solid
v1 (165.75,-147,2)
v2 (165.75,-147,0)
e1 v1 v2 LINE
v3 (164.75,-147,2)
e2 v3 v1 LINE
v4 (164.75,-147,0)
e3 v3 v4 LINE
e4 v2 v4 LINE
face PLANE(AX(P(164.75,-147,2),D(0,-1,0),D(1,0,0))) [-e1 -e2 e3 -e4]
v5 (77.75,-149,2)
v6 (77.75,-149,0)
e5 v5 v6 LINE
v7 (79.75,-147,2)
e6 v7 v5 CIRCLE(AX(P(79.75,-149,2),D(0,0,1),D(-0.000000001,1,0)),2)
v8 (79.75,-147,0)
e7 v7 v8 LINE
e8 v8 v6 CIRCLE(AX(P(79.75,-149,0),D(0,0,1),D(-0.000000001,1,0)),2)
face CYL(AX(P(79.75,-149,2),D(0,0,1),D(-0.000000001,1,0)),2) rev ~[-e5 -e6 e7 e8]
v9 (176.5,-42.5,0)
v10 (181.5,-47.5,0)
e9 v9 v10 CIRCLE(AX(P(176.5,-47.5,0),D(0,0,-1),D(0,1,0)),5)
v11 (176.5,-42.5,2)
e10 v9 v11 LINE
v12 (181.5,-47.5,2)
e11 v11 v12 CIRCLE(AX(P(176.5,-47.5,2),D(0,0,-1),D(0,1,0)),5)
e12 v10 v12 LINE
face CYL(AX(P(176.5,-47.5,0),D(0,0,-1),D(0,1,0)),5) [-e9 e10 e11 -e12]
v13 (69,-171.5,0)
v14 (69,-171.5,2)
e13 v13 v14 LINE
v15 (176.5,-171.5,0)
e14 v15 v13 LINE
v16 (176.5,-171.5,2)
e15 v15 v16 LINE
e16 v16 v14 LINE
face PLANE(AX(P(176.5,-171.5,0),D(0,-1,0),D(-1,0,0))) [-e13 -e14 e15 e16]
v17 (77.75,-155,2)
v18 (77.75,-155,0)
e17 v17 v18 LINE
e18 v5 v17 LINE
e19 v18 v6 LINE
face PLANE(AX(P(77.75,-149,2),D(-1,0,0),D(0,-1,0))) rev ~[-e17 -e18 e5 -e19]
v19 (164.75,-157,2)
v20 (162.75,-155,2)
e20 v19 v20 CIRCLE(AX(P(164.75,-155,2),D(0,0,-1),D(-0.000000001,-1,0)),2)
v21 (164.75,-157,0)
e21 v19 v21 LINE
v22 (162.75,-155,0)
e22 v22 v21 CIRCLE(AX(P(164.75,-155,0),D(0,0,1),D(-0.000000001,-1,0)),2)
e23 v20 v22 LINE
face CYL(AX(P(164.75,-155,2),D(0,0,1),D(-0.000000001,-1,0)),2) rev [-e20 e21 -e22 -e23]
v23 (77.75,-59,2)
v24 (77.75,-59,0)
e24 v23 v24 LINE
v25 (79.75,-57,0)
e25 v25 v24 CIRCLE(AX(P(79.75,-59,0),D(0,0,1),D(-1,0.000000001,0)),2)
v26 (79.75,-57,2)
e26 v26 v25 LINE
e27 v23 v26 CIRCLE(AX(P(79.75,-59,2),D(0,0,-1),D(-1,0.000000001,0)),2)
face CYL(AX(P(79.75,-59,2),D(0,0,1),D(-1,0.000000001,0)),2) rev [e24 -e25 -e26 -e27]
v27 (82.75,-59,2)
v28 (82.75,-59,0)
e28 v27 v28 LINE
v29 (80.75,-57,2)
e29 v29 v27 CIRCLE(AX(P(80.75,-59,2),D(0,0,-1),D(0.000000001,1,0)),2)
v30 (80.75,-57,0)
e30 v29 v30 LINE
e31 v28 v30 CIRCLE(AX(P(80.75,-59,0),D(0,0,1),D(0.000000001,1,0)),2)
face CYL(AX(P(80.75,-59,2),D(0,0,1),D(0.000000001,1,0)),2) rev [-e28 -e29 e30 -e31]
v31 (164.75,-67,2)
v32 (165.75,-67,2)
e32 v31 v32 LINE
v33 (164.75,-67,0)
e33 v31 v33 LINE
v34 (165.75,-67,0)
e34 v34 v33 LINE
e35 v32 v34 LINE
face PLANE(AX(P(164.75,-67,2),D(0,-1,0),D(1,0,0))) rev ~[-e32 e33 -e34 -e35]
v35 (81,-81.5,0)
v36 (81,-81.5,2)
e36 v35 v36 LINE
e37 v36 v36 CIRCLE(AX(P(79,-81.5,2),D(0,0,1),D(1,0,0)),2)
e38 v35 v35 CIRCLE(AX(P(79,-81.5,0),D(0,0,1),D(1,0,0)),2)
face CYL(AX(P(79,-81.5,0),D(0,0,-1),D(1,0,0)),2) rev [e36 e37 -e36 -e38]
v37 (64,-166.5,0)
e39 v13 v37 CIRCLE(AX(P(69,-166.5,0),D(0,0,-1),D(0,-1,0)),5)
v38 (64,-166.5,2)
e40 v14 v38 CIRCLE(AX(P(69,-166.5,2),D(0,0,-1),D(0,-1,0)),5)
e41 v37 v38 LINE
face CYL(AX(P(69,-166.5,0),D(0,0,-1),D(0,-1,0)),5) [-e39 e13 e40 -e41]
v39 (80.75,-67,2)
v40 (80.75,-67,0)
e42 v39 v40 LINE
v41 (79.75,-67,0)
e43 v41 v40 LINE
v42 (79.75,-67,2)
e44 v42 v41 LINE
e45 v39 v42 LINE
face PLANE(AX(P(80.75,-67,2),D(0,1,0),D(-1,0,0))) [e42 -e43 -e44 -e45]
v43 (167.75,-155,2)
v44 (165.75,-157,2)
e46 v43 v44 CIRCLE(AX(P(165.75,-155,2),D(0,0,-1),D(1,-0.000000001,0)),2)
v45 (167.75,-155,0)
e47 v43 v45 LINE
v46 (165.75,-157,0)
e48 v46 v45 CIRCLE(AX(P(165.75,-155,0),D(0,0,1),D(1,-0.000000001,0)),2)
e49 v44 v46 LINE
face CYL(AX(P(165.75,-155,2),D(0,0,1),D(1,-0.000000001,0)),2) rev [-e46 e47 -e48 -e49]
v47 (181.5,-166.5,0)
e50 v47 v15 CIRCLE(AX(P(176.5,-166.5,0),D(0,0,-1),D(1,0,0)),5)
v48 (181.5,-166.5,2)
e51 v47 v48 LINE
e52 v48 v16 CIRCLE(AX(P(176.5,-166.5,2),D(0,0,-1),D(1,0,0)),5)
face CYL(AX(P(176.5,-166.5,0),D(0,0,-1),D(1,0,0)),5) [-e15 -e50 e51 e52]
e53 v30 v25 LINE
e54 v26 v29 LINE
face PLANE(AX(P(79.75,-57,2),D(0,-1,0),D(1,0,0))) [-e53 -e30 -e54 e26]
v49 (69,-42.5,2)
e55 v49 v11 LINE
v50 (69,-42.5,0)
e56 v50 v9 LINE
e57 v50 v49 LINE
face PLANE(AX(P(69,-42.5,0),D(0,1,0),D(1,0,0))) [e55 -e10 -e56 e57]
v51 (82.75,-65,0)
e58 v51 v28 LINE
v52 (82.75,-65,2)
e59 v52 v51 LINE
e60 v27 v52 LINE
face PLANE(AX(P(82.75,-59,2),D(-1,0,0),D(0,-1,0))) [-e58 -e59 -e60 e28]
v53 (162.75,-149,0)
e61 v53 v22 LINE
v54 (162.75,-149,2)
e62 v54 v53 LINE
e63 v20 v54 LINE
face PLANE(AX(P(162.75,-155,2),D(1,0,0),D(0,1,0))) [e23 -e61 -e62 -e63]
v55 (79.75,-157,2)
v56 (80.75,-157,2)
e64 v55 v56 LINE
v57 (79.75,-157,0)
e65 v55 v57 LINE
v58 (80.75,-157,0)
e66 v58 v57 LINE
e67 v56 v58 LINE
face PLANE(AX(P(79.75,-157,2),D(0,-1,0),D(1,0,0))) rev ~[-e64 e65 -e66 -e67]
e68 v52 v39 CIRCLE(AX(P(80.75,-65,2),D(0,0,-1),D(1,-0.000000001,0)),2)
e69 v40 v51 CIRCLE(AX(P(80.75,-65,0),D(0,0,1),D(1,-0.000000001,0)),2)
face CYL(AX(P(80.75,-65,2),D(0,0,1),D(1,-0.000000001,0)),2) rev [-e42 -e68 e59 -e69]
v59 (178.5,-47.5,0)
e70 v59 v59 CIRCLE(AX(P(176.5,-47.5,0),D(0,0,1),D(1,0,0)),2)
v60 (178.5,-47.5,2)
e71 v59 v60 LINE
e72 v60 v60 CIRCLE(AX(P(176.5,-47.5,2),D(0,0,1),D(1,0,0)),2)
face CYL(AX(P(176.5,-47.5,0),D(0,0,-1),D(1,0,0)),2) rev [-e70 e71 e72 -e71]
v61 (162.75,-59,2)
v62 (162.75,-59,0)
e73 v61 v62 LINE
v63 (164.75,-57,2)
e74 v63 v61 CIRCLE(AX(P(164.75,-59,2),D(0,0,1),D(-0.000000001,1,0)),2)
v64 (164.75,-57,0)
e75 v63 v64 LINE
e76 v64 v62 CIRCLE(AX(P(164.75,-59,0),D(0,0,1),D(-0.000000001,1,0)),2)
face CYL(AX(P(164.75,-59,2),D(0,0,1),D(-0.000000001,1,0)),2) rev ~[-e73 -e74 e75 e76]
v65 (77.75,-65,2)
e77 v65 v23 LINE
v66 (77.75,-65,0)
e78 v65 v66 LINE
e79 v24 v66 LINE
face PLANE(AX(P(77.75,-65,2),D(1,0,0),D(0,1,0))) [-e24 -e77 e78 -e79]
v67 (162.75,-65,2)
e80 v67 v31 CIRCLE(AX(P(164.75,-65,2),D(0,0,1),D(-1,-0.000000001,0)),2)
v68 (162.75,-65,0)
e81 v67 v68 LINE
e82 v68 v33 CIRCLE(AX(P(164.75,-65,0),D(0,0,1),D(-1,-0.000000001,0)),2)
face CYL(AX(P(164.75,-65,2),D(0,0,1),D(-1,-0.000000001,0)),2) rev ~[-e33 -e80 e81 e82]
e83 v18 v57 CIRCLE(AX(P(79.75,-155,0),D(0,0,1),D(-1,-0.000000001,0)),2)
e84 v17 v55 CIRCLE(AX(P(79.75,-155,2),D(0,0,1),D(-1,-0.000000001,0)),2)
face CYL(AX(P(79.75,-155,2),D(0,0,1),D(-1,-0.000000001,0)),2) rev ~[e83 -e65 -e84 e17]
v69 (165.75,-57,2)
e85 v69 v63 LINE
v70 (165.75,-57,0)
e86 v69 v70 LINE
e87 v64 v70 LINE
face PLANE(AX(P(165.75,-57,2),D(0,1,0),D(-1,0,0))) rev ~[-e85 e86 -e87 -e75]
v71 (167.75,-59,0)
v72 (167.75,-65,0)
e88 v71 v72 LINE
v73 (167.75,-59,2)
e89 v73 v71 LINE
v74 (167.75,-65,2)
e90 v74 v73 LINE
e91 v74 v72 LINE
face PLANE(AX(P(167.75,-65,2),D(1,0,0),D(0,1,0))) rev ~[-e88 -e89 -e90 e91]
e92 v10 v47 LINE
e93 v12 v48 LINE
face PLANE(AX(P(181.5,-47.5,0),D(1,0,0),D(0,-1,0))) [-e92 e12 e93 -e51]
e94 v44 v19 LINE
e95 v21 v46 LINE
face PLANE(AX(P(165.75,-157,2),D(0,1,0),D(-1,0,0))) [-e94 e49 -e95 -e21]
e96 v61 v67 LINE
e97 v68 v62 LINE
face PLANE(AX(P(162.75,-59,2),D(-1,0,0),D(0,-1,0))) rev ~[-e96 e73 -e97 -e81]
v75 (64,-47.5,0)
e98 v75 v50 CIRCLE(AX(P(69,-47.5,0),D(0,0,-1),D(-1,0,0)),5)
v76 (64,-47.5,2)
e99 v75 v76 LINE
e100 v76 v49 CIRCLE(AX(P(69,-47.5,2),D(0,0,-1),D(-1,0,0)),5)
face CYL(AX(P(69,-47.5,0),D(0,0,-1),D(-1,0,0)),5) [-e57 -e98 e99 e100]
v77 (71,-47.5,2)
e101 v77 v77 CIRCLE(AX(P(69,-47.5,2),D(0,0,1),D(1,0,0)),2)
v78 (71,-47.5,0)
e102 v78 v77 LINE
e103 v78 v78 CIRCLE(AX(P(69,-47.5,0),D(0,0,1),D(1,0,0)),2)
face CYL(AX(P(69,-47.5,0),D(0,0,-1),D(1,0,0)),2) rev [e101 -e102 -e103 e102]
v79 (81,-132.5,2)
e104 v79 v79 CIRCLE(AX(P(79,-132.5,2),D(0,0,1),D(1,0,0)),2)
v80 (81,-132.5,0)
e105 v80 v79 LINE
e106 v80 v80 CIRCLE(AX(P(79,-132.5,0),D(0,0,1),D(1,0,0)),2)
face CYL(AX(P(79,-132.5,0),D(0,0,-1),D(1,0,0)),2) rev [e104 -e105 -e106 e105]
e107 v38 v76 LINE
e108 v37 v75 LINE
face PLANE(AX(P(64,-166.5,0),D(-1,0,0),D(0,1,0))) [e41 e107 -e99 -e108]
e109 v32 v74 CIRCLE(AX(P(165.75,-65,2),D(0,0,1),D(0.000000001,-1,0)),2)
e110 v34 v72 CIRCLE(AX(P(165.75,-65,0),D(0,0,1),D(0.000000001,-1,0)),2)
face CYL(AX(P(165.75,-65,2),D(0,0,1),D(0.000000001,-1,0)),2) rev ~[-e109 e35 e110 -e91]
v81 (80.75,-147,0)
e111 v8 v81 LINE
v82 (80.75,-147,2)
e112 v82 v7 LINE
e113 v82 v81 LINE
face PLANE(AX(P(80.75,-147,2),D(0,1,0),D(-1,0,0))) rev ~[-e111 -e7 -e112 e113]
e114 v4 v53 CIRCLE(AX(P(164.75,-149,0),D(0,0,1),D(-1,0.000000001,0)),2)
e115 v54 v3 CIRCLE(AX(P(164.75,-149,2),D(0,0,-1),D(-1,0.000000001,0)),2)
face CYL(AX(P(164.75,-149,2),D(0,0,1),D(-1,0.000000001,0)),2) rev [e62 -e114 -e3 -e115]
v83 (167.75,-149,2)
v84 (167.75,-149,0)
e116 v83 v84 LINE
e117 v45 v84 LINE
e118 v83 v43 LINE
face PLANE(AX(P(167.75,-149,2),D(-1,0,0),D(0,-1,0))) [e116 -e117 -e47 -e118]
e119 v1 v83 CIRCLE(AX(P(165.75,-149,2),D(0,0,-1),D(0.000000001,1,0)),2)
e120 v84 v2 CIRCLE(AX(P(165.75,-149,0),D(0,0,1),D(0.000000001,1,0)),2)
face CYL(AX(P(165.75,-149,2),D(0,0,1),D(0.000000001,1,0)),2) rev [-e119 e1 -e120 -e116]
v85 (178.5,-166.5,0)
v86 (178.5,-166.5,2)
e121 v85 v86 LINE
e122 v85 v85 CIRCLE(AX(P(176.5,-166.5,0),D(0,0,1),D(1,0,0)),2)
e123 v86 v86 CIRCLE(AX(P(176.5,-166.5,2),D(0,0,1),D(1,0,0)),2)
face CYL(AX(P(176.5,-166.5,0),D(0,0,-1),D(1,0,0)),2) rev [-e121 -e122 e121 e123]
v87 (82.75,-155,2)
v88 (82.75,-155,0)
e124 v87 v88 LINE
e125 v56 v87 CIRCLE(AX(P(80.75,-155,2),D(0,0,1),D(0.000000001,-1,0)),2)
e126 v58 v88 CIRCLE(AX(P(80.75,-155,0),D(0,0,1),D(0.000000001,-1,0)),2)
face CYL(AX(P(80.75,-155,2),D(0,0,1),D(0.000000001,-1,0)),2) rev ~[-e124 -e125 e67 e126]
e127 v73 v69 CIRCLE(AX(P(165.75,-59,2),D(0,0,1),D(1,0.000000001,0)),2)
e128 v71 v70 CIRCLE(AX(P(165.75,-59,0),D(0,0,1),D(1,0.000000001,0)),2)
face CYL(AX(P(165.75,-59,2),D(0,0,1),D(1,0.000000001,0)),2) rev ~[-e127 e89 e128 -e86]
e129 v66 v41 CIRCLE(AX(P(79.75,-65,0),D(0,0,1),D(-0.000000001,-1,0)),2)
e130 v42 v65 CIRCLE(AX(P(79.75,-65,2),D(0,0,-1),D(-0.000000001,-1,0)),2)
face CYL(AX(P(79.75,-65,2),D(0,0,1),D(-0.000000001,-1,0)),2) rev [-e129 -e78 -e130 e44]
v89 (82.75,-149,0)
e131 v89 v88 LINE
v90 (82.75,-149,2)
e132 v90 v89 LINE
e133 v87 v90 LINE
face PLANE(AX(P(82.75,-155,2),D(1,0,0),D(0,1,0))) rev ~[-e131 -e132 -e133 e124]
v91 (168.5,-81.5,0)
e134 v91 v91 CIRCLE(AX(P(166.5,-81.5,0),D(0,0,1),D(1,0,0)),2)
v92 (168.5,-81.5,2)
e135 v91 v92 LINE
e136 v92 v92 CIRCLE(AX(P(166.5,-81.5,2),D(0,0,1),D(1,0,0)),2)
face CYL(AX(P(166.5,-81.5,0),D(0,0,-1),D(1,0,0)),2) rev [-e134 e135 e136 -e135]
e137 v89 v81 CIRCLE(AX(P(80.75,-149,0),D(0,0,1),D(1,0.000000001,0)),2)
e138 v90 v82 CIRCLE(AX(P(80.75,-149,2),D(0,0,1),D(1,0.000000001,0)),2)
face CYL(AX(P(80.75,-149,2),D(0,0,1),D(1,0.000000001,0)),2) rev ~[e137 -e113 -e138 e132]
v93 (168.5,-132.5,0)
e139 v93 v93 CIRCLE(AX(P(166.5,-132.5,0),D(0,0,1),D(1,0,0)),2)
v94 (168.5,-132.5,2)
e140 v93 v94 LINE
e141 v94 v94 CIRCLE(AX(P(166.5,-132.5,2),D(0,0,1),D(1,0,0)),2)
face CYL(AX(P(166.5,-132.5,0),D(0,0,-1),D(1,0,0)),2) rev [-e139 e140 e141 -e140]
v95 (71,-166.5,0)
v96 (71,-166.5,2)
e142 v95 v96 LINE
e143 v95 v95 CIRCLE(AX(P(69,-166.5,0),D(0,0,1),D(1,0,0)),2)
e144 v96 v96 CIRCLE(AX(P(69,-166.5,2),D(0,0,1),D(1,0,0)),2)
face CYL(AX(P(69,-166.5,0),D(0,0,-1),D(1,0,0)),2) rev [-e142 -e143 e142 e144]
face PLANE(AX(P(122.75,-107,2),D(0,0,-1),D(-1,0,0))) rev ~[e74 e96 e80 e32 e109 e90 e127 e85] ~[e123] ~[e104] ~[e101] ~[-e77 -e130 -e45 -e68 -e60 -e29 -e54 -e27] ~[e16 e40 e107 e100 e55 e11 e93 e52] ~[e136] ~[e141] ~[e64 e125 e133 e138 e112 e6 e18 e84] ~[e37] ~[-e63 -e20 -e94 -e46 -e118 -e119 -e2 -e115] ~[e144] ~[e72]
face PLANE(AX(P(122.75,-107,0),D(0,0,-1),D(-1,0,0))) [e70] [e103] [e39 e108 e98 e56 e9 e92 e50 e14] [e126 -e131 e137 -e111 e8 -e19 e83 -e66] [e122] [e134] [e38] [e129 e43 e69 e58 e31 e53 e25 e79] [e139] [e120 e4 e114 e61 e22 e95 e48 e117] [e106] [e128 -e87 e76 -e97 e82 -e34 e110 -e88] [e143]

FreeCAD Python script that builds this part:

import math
import FreeCAD as App
import Part
import Sketcher

V = App.Vector
Q = App.Units.Quantity

doc = App.newDocument("Part")
body = doc.addObject("PartDesign::Body", "Body")

sketch1 = body.newObject("Sketcher::SketchObject", "Sketch")
sketch1.AttachmentSupport = (doc.getObject("XY_Plane"), [""])
sketch1.MapMode = "FlatFace"
sketch1.addGeometry([
    Part.LineSegment(V(176.5, -42.5, 0), V(69, -42.5, 0)),
    Part.ArcOfCircle(Part.Circle(V(69, -47.5, 0), V(0, 0, 1), 5), math.radians(90), math.radians(180)),
    Part.LineSegment(V(64, -47.5, 0), V(64, -166.5, 0)),
    Part.ArcOfCircle(Part.Circle(V(69, -166.5, 0), V(0, 0, 1), 5), math.radians(180), math.radians(270)),
    Part.LineSegment(V(69, -171.5, 0), V(176.5, -171.5, 0)),
    Part.ArcOfCircle(Part.Circle(V(176.5, -166.5, 0), V(0, 0, 1), 5), math.radians(-90), math.radians(0)),
    Part.LineSegment(V(181.5, -166.5, 0), V(181.5, -47.5, 0)),
    Part.ArcOfCircle(Part.Circle(V(176.5, -47.5, 0), V(0, 0, 1), 5), math.radians(0), math.radians(90)),
    Part.Circle(V(176.5, -166.5, 0), V(0, 0, 1), 2),
    Part.Circle(V(166.5, -132.5, 0), V(0, 0, 1), 2),
    Part.Circle(V(69, -166.5, 0), V(0, 0, 1), 2),
    Part.Circle(V(79, -132.5, 0), V(0, 0, 1), 2),
    Part.Circle(V(166.5, -81.5, 0), V(0, 0, 1), 2),
    Part.Circle(V(176.5, -47.5, 0), V(0, 0, 1), 2),
    Part.Circle(V(79, -81.5, 0), V(0, 0, 1), 2),
    Part.Circle(V(69, -47.5, 0), V(0, 0, 1), 2),
], False)
sketch1.addConstraint([
    Sketcher.Constraint("Tangent", 0, 2, 1, 1),
    Sketcher.Constraint("Tangent", 1, 2, 2, 1),
    Sketcher.Constraint("Tangent", 2, 2, 3, 1),
    Sketcher.Constraint("Tangent", 3, 2, 4, 1),
    Sketcher.Constraint("Tangent", 4, 2, 5, 1),
    Sketcher.Constraint("Tangent", 5, 2, 6, 1),
    Sketcher.Constraint("Tangent", 6, 2, 7, 1),
    Sketcher.Constraint("Tangent", 7, 2, 0, 1),
    Sketcher.Constraint("Horizontal", 0),
    Sketcher.Constraint("Vertical", 2),
    Sketcher.Constraint("Horizontal", 4),
    Sketcher.Constraint("Vertical", 6),
    Sketcher.Constraint("Coincident", 8, 3, 5, 3),
    Sketcher.Constraint("Coincident", 10, 3, 3, 3),
    Sketcher.Constraint("Coincident", 13, 3, 7, 3),
    Sketcher.Constraint("Coincident", 15, 3, 1, 3),
    Sketcher.Constraint("Equal", 1, 3),
    Sketcher.Constraint("Equal", 3, 5),
    Sketcher.Constraint("Equal", 5, 7),
    Sketcher.Constraint("Equal", 8, 9),
    Sketcher.Constraint("Equal", 9, 10),
    Sketcher.Constraint("Equal", 10, 11),
    Sketcher.Constraint("Equal", 11, 12),
    Sketcher.Constraint("Equal", 12, 13),
    Sketcher.Constraint("Equal", 13, 14),
    Sketcher.Constraint("Equal", 14, 15),
    Sketcher.Constraint("Horizontal", 9, 3, 11, 3),
    Sketcher.Constraint("Horizontal", 12, 3, 14, 3),
    Sketcher.Constraint("Vertical", 9, 3, 12, 3),
    Sketcher.Constraint("Vertical", 11, 3, 14, 3),
    Sketcher.Constraint("Diameter", 8, Q("4 mm")),
    Sketcher.Constraint("Radius", 1, Q("5 mm")),
    Sketcher.Constraint("DistanceY", 2, 2, 2, 1, Q("119 mm")),
    Sketcher.Constraint("DistanceX", 0, 2, 0, 1, Q("107.5 mm")),
    Sketcher.Constraint("DistanceX", -1, 1, 1, 3, Q("69 mm")),
    Sketcher.Constraint("DistanceX", -1, 1, 11, 3, Q("79 mm")),
    Sketcher.Constraint("DistanceX", 9, 3, 5, 3, Q("10 mm")),
    Sketcher.Constraint("DistanceY", 5, 3, 9, 3, Q("34 mm")),
    Sketcher.Constraint("DistanceY", 12, 3, 7, 3, Q("34 mm")),
    Sketcher.Constraint("DistanceY", 1, 3, -1, 1, Q("47.5 mm")),
])
pad1 = body.newObject("PartDesign::Pad", "Pad")
pad1.Profile = sketch1
pad1.Length = 2

sketch2 = body.newObject("Sketcher::SketchObject", "Sketch001")
sketch2.AttachmentSupport = (doc.getObject("XY_Plane"), [""])
sketch2.MapMode = "FlatFace"
sketch2.AttachmentOffset = App.Placement(V(0, 0, 2), App.Rotation())
sketch2.addGeometry([
    Part.LineSegment(V(80.8, -57, 0), V(79.8, -57, 0)),
    Part.ArcOfCircle(Part.Circle(V(79.8, -59, 0), V(0, 0, 1), 2), math.radians(90), math.radians(180)),
    Part.LineSegment(V(77.8, -59, 0), V(77.8, -65, 0)),
    Part.ArcOfCircle(Part.Circle(V(79.8, -65, 0), V(0, 0, 1), 2), math.radians(-180), math.radians(-90)),
    Part.LineSegment(V(79.8, -67, 0), V(80.8, -67, 0)),
    Part.ArcOfCircle(Part.Circle(V(80.7, -65, 0), V(0, 0, 1), 2), math.radians(-90), math.radians(0)),
    Part.LineSegment(V(82.8, -65, 0), V(82.8, -59, 0)),
    Part.ArcOfCircle(Part.Circle(V(80.7, -59, 0), V(0, 0, 1), 2), math.radians(0), math.radians(90)),
    Part.LineSegment(V(162.8, -59, 0), V(162.8, -65, 0)),
    Part.ArcOfCircle(Part.Circle(V(164.8, -65, 0), V(0, 0, 1), 2), math.radians(-180), math.radians(-90)),
    Part.LineSegment(V(164.8, -67, 0), V(165.8, -67, 0)),
    Part.ArcOfCircle(Part.Circle(V(165.7, -65, 0), V(0, 0, 1), 2), math.radians(-90), math.radians(0)),
    Part.LineSegment(V(167.8, -65, 0), V(167.8, -59, 0)),
    Part.ArcOfCircle(Part.Circle(V(165.7, -59, 0), V(0, 0, 1), 2), math.radians(0), math.radians(90)),
    Part.LineSegment(V(165.8, -57, 0), V(164.8, -57, 0)),
    Part.ArcOfCircle(Part.Circle(V(164.8, -59, 0), V(0, 0, 1), 2), math.radians(90), math.radians(180)),
    Part.LineSegment(V(164.8, -157, 0), V(165.8, -157, 0)),
    Part.ArcOfCircle(Part.Circle(V(165.7, -155, 0), V(0, 0, 1), 2), math.radians(-90), math.radians(0)),
    Part.LineSegment(V(167.8, -155, 0), V(167.8, -149, 0)),
    Part.ArcOfCircle(Part.Circle(V(165.7, -149, 0), V(0, 0, 1), 2), math.radians(0), math.radians(90)),
    Part.LineSegment(V(165.8, -147, 0), V(164.8, -147, 0)),
    Part.ArcOfCircle(Part.Circle(V(164.8, -149, 0), V(0, 0, 1), 2), math.radians(90), math.radians(180)),
    Part.LineSegment(V(162.8, -149, 0), V(162.8, -155, 0)),
    Part.ArcOfCircle(Part.Circle(V(164.8, -155, 0), V(0, 0, 1), 2), math.radians(-180), math.radians(-90)),
    Part.LineSegment(V(82.8, -155, 0), V(82.8, -149, 0)),
    Part.ArcOfCircle(Part.Circle(V(80.7, -149, 0), V(0, 0, 1), 2), math.radians(0), math.radians(90)),
    Part.LineSegment(V(80.8, -147, 0), V(79.8, -147, 0)),
    Part.ArcOfCircle(Part.Circle(V(79.8, -149, 0), V(0, 0, 1), 2), math.radians(90), math.radians(180)),
    Part.LineSegment(V(77.8, -149, 0), V(77.8, -155, 0)),
    Part.ArcOfCircle(Part.Circle(V(79.8, -155, 0), V(0, 0, 1), 2), math.radians(-180), math.radians(-90)),
    Part.LineSegment(V(79.8, -157, 0), V(80.8, -157, 0)),
    Part.ArcOfCircle(Part.Circle(V(80.7, -155, 0), V(0, 0, 1), 2), math.radians(-90), math.radians(0)),
], False)
sketch2.addConstraint([
    Sketcher.Constraint("Tangent", 0, 2, 1, 1),
    Sketcher.Constraint("Tangent", 1, 2, 2, 1),
    Sketcher.Constraint("Tangent", 2, 2, 3, 1),
    Sketcher.Constraint("Tangent", 3, 2, 4, 1),
    Sketcher.Constraint("Tangent", 4, 2, 5, 1),
    Sketcher.Constraint("Tangent", 5, 2, 6, 1),
    Sketcher.Constraint("Tangent", 6, 2, 7, 1),
    Sketcher.Constraint("Tangent", 7, 2, 0, 1),
    Sketcher.Constraint("Tangent", 8, 2, 9, 1),
    Sketcher.Constraint("Tangent", 9, 2, 10, 1),
    Sketcher.Constraint("Tangent", 10, 2, 11, 1),
    Sketcher.Constraint("Tangent", 11, 2, 12, 1),
    Sketcher.Constraint("Tangent", 12, 2, 13, 1),
    Sketcher.Constraint("Tangent", 13, 2, 14, 1),
    Sketcher.Constraint("Tangent", 14, 2, 15, 1),
    Sketcher.Constraint("Tangent", 15, 2, 8, 1),
    Sketcher.Constraint("Tangent", 16, 2, 17, 1),
    Sketcher.Constraint("Tangent", 17, 2, 18, 1),
    Sketcher.Constraint("Tangent", 18, 2, 19, 1),
    Sketcher.Constraint("Tangent", 19, 2, 20, 1),
    Sketcher.Constraint("Tangent", 20, 2, 21, 1),
    Sketcher.Constraint("Tangent", 21, 2, 22, 1),
    Sketcher.Constraint("Tangent", 22, 2, 23, 1),
    Sketcher.Constraint("Tangent", 23, 2, 16, 1),
    Sketcher.Constraint("Tangent", 24, 2, 25, 1),
    Sketcher.Constraint("Tangent", 25, 2, 26, 1),
    Sketcher.Constraint("Tangent", 26, 2, 27, 1),
    Sketcher.Constraint("Tangent", 27, 2, 28, 1),
    Sketcher.Constraint("Tangent", 28, 2, 29, 1),
    Sketcher.Constraint("Tangent", 29, 2, 30, 1),
    Sketcher.Constraint("Tangent", 30, 2, 31, 1),
    Sketcher.Constraint("Tangent", 31, 2, 24, 1),
    Sketcher.Constraint("Horizontal", 0),
    Sketcher.Constraint("Vertical", 2),
    Sketcher.Constraint("Horizontal", 4),
    Sketcher.Constraint("Vertical", 6),
    Sketcher.Constraint("Vertical", 8),
    Sketcher.Constraint("Horizontal", 10),
    Sketcher.Constraint("Vertical", 12),
    Sketcher.Constraint("Horizontal", 14),
    Sketcher.Constraint("Horizontal", 16),
    Sketcher.Constraint("Vertical", 18),
    Sketcher.Constraint("Horizontal", 20),
    Sketcher.Constraint("Vertical", 22),
    Sketcher.Constraint("Vertical", 24),
    Sketcher.Constraint("Horizontal", 26),
    Sketcher.Constraint("Vertical", 28),
    Sketcher.Constraint("Horizontal", 30),
    Sketcher.Constraint("Equal", 1, 3),
    Sketcher.Constraint("Equal", 3, 5),
    Sketcher.Constraint("Equal", 5, 7),
    Sketcher.Constraint("Equal", 7, 9),
    Sketcher.Constraint("Equal", 9, 11),
    Sketcher.Constraint("Equal", 11, 13),
    Sketcher.Constraint("Equal", 13, 15),
    Sketcher.Constraint("Equal", 15, 17),
    Sketcher.Constraint("Equal", 17, 19),
    Sketcher.Constraint("Equal", 19, 21),
    Sketcher.Constraint("Equal", 21, 23),
    Sketcher.Constraint("Equal", 23, 25),
    Sketcher.Constraint("Equal", 25, 27),
    Sketcher.Constraint("Equal", 27, 29),
    Sketcher.Constraint("Equal", 29, 31),
    Sketcher.Constraint("Horizontal", 5, 3, 9, 3),
    Sketcher.Constraint("Horizontal", 7, 3, 13, 3),
    Sketcher.Constraint("Horizontal", 21, 3, 25, 3),
    Sketcher.Constraint("Horizontal", 23, 3, 29, 3),
    Sketcher.Constraint("Vertical", 13, 3, 17, 3),
    Sketcher.Constraint("Vertical", 15, 3, 21, 3),
    Sketcher.Constraint("Vertical", 7, 3, 25, 3),
    Sketcher.Constraint("Vertical", 3, 3, 27, 3),
    Sketcher.Constraint("Equal", 4, 10),
    Sketcher.Constraint("Equal", 12, 18),
    Sketcher.Constraint("Radius", 1, Q("2 mm")),
    Sketcher.Constraint("DistanceX", 0, 2, 0, 1, Q("1 mm")),
    Sketcher.Constraint("DistanceY", 2, 2, 2, 1, Q("6 mm")),
    Sketcher.Constraint("DistanceY", 1, 3, -1, 1, Q("59 mm")),
    Sketcher.Constraint("DistanceY", 17, 3, -1, 1, Q("155 mm")),
    Sketcher.Constraint("DistanceX", 5, 3, 9, 3, Q("84 mm")),
    Sketcher.Constraint("DistanceX", -1, 1, 1, 3, Q("79.75 mm")),
])
pocket1 = body.newObject("PartDesign::Pocket", "Pocket")
pocket1.Profile = sketch2
pocket1.Length = 3

doc.recompute()
